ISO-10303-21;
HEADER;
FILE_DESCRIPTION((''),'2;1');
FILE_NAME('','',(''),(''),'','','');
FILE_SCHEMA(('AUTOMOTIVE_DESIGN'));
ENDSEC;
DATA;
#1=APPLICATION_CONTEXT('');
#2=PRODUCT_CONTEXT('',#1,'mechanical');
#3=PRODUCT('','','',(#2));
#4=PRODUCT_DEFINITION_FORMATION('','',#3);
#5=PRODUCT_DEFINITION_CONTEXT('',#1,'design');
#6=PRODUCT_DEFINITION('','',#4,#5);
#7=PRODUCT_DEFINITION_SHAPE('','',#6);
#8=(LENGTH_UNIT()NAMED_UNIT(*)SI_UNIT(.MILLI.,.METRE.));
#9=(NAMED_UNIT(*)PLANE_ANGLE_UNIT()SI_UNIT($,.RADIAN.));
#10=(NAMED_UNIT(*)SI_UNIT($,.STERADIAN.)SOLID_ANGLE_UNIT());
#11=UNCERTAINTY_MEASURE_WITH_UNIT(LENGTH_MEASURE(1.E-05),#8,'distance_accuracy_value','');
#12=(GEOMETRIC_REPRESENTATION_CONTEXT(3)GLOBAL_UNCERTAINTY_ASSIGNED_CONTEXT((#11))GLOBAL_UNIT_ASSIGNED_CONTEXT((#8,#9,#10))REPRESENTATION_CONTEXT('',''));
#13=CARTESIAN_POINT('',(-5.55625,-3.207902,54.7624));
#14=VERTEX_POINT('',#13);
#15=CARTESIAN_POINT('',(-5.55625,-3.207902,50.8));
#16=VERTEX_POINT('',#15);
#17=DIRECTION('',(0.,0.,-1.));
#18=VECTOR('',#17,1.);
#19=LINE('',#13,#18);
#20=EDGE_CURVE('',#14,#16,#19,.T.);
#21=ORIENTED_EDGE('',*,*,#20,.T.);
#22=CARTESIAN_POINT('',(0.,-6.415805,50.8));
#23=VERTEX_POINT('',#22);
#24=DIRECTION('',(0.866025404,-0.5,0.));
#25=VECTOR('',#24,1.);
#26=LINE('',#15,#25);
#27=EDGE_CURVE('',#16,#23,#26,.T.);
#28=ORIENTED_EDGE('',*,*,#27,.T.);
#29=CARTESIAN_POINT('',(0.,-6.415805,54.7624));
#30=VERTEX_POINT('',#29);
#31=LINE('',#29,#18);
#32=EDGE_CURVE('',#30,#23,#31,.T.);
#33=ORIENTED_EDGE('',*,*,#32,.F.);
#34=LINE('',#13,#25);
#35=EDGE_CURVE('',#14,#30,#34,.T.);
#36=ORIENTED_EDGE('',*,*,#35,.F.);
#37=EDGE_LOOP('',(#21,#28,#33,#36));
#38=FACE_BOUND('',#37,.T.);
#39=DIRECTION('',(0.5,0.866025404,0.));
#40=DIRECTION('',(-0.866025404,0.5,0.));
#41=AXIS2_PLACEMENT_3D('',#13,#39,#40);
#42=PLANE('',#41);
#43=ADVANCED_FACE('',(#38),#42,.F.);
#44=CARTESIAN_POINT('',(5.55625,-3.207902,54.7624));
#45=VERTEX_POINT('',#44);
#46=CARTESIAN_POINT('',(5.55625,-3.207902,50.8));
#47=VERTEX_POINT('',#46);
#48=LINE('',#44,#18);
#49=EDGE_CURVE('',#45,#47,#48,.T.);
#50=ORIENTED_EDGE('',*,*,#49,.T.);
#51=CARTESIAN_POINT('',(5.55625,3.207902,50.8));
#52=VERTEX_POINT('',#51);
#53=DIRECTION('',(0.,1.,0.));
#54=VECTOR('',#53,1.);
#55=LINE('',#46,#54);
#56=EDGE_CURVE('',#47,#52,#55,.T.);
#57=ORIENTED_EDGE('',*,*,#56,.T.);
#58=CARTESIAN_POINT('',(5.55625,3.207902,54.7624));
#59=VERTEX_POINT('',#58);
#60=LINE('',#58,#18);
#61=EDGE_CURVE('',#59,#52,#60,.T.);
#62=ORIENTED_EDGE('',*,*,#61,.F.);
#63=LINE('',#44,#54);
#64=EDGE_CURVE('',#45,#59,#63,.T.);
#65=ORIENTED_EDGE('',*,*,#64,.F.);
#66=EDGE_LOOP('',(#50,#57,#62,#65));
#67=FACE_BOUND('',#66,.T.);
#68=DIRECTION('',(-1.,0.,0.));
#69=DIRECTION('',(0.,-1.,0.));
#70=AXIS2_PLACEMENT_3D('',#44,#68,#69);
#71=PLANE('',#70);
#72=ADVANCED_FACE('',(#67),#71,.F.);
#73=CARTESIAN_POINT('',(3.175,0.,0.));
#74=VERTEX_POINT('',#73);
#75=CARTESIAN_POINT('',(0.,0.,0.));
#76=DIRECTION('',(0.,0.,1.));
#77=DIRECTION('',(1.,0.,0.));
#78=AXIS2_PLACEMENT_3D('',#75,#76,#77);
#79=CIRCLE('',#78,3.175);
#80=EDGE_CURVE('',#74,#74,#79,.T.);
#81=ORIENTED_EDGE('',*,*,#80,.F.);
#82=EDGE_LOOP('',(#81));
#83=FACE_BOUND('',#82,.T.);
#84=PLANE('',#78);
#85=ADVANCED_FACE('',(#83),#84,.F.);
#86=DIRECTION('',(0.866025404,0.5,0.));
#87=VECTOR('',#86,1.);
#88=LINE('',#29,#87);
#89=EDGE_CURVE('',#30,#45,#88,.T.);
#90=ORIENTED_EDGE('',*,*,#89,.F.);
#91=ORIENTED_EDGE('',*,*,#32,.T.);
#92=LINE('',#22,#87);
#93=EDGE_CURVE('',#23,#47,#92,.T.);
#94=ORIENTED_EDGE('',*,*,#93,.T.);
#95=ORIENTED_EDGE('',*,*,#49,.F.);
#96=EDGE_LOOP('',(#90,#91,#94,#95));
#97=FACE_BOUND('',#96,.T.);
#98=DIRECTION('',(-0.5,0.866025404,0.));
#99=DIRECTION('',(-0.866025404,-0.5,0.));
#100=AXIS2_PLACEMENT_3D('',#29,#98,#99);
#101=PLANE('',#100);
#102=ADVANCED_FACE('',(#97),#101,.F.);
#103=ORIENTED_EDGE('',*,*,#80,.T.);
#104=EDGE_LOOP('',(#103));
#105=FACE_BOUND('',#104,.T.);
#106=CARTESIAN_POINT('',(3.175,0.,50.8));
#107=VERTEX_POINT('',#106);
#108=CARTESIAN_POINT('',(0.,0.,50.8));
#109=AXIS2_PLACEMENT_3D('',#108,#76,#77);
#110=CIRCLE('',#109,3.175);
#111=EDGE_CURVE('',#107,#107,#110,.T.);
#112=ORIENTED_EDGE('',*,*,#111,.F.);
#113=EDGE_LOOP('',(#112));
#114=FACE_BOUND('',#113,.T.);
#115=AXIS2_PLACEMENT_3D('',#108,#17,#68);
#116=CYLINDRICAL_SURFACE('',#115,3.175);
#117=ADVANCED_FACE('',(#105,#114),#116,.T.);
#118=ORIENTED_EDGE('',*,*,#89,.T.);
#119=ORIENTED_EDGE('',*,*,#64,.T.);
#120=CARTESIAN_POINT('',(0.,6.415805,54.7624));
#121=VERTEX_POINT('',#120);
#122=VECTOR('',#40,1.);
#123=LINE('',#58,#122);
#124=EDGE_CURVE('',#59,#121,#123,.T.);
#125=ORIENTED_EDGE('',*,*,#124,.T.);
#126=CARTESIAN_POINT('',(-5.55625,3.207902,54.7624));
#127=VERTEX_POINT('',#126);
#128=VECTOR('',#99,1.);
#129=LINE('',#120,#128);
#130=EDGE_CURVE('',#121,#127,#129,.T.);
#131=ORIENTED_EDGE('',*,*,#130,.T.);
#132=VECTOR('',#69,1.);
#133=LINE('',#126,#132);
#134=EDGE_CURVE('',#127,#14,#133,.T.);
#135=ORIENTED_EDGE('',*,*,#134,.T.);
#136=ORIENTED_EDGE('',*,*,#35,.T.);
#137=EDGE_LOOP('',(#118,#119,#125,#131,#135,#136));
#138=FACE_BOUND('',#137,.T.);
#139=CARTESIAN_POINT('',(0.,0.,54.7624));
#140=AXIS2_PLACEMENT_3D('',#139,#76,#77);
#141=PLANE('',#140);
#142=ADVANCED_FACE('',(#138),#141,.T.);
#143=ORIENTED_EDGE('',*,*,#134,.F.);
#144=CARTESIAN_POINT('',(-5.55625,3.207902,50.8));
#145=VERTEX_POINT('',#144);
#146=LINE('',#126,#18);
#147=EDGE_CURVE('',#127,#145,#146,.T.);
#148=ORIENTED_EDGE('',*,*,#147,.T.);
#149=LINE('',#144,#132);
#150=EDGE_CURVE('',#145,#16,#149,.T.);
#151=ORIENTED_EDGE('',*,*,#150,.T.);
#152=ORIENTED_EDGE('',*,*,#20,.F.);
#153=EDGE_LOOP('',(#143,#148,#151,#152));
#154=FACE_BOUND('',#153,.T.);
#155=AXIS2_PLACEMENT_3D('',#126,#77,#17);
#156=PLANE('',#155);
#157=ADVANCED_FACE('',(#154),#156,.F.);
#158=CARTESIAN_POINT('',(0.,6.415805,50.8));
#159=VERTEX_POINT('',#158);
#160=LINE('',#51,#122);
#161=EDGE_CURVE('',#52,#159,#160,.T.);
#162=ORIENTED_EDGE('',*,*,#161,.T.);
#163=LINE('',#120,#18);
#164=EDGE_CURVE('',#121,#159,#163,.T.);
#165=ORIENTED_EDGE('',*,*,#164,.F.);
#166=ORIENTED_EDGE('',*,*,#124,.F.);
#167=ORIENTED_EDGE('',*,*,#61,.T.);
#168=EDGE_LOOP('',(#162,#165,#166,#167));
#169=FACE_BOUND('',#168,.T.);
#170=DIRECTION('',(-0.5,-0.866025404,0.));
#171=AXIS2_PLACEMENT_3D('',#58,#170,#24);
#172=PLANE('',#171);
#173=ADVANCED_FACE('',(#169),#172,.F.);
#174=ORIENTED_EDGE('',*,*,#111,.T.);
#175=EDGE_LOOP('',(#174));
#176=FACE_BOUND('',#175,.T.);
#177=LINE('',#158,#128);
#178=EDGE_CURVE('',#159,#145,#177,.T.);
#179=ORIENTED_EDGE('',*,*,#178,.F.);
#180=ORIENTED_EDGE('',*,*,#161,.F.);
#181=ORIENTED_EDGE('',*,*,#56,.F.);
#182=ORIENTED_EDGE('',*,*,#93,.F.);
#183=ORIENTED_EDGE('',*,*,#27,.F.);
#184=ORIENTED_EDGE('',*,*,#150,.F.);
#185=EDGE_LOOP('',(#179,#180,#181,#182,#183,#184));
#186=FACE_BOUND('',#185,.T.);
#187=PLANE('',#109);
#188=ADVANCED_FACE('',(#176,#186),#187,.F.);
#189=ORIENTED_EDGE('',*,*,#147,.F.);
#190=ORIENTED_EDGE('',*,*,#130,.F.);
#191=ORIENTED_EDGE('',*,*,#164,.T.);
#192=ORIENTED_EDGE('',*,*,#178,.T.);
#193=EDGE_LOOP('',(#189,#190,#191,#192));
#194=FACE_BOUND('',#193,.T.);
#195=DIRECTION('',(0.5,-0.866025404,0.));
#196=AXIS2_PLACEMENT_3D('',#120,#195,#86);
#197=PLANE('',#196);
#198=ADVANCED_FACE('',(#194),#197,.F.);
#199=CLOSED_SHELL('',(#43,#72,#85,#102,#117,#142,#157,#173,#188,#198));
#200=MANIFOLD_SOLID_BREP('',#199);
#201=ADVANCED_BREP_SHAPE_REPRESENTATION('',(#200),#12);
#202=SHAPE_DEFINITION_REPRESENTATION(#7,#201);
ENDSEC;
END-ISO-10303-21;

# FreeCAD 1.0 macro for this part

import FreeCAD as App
import Part
import Sketcher
from FreeCAD import Vector
Q = App.Units.Quantity

doc = App.newDocument("Part")
params = doc.addObject("Spreadsheet::Sheet", "Params")
for row, (alias, value) in enumerate([
    ("sketch1_diameter", "0.25 in"),
    ("pad1_length", "2 in"),
    ("pad2_length", "0.156 in"),
], start=1):
    params.set(f"A{row}", alias)
    params.set(f"B{row}", "=" + value)
    params.setAlias(f"B{row}", alias)

body = doc.addObject("PartDesign::Body", "Body")

# Sketch on XY plane
sketch1 = doc.addObject("Sketcher::SketchObject", "Sketch")
body.addObject(sketch1)
sketch1.AttachmentSupport = (doc.XY_Plane, [""])
sketch1.MapMode = "FlatFace"
sketch1.addGeometry(Part.Circle(Vector(0, 0, 0), Vector(0, 0, 1), 3.175), False)
sketch1.addConstraint([
    Sketcher.Constraint("Coincident", 0, 3, -1, 1),
    Sketcher.Constraint("Diameter", 0, Q("0.25 in")),
])
sketch1.setExpression("Constraints[1]", "Params.sketch1_diameter")
pad1 = doc.addObject("PartDesign::Pad", "Pad")
body.addObject(pad1)
pad1.Profile = sketch1
pad1.setExpression("Length", "Params.pad1_length")

# Sketch on XY plane
sketch2 = doc.addObject("Sketcher::SketchObject", "Sketch001")
body.addObject(sketch2)
sketch2.AttachmentSupport = (doc.XY_Plane, [""])
sketch2.MapMode = "FlatFace"
sketch2.AttachmentOffset = App.Placement(Vector(0, 0, 2 * 25.4), App.Rotation())
sketch2.addGeometry([
    Part.LineSegment(Vector(5.55625, 3.207902, 0), Vector(0, 6.415805, 0)),  # 0
    Part.LineSegment(Vector(0, 6.415805, 0), Vector(-5.55625, 3.207902, 0)),  # 1
    Part.LineSegment(Vector(-5.55625, 3.207902, 0), Vector(-5.55625, -3.207902, 0)),  # 2
    Part.LineSegment(Vector(-5.55625, -3.207902, 0), Vector(0, -6.415805, 0)),  # 3
    Part.LineSegment(Vector(0, -6.415805, 0), Vector(5.55625, -3.207902, 0)),  # 4
    Part.LineSegment(Vector(5.55625, -3.207902, 0), Vector(5.55625, 3.207902, 0)),  # 5
], False)
sketch2.addConstraint([
    Sketcher.Constraint("Coincident", 0, 2, 1, 1),
    Sketcher.Constraint("Coincident", 1, 2, 2, 1),
    Sketcher.Constraint("Coincident", 2, 2, 3, 1),
    Sketcher.Constraint("Coincident", 3, 2, 4, 1),
    Sketcher.Constraint("Coincident", 4, 2, 5, 1),
    Sketcher.Constraint("Coincident", 5, 2, 0, 1),
    Sketcher.Constraint("Vertical", 2),
    Sketcher.Constraint("Vertical", 5),
    Sketcher.Constraint("Symmetric", 0, 2, 3, 2, -1, 1),
    Sketcher.Constraint("Symmetric", 1, 2, 4, 2, -1, 1),
    Sketcher.Constraint("PointOnObject", 0, 2, -2),
    Sketcher.Constraint("Parallel", 0, 3),
    Sketcher.Constraint("Horizontal", 2, 2, 4, 2),
    Sketcher.Constraint("Angle", 0, Q("150 deg")),
    Sketcher.Constraint("DistanceX", 1, 2, -1, 1, Q("0.21875 in")),
    Sketcher.Constraint("DistanceY", 2, 2, 2, 1, Q("6.415805 mm")),
])
pad2 = doc.addObject("PartDesign::Pad", "Pad001")
body.addObject(pad2)
pad2.Profile = sketch2
pad2.setExpression("Length", "Params.pad2_length")

doc.recompute()
